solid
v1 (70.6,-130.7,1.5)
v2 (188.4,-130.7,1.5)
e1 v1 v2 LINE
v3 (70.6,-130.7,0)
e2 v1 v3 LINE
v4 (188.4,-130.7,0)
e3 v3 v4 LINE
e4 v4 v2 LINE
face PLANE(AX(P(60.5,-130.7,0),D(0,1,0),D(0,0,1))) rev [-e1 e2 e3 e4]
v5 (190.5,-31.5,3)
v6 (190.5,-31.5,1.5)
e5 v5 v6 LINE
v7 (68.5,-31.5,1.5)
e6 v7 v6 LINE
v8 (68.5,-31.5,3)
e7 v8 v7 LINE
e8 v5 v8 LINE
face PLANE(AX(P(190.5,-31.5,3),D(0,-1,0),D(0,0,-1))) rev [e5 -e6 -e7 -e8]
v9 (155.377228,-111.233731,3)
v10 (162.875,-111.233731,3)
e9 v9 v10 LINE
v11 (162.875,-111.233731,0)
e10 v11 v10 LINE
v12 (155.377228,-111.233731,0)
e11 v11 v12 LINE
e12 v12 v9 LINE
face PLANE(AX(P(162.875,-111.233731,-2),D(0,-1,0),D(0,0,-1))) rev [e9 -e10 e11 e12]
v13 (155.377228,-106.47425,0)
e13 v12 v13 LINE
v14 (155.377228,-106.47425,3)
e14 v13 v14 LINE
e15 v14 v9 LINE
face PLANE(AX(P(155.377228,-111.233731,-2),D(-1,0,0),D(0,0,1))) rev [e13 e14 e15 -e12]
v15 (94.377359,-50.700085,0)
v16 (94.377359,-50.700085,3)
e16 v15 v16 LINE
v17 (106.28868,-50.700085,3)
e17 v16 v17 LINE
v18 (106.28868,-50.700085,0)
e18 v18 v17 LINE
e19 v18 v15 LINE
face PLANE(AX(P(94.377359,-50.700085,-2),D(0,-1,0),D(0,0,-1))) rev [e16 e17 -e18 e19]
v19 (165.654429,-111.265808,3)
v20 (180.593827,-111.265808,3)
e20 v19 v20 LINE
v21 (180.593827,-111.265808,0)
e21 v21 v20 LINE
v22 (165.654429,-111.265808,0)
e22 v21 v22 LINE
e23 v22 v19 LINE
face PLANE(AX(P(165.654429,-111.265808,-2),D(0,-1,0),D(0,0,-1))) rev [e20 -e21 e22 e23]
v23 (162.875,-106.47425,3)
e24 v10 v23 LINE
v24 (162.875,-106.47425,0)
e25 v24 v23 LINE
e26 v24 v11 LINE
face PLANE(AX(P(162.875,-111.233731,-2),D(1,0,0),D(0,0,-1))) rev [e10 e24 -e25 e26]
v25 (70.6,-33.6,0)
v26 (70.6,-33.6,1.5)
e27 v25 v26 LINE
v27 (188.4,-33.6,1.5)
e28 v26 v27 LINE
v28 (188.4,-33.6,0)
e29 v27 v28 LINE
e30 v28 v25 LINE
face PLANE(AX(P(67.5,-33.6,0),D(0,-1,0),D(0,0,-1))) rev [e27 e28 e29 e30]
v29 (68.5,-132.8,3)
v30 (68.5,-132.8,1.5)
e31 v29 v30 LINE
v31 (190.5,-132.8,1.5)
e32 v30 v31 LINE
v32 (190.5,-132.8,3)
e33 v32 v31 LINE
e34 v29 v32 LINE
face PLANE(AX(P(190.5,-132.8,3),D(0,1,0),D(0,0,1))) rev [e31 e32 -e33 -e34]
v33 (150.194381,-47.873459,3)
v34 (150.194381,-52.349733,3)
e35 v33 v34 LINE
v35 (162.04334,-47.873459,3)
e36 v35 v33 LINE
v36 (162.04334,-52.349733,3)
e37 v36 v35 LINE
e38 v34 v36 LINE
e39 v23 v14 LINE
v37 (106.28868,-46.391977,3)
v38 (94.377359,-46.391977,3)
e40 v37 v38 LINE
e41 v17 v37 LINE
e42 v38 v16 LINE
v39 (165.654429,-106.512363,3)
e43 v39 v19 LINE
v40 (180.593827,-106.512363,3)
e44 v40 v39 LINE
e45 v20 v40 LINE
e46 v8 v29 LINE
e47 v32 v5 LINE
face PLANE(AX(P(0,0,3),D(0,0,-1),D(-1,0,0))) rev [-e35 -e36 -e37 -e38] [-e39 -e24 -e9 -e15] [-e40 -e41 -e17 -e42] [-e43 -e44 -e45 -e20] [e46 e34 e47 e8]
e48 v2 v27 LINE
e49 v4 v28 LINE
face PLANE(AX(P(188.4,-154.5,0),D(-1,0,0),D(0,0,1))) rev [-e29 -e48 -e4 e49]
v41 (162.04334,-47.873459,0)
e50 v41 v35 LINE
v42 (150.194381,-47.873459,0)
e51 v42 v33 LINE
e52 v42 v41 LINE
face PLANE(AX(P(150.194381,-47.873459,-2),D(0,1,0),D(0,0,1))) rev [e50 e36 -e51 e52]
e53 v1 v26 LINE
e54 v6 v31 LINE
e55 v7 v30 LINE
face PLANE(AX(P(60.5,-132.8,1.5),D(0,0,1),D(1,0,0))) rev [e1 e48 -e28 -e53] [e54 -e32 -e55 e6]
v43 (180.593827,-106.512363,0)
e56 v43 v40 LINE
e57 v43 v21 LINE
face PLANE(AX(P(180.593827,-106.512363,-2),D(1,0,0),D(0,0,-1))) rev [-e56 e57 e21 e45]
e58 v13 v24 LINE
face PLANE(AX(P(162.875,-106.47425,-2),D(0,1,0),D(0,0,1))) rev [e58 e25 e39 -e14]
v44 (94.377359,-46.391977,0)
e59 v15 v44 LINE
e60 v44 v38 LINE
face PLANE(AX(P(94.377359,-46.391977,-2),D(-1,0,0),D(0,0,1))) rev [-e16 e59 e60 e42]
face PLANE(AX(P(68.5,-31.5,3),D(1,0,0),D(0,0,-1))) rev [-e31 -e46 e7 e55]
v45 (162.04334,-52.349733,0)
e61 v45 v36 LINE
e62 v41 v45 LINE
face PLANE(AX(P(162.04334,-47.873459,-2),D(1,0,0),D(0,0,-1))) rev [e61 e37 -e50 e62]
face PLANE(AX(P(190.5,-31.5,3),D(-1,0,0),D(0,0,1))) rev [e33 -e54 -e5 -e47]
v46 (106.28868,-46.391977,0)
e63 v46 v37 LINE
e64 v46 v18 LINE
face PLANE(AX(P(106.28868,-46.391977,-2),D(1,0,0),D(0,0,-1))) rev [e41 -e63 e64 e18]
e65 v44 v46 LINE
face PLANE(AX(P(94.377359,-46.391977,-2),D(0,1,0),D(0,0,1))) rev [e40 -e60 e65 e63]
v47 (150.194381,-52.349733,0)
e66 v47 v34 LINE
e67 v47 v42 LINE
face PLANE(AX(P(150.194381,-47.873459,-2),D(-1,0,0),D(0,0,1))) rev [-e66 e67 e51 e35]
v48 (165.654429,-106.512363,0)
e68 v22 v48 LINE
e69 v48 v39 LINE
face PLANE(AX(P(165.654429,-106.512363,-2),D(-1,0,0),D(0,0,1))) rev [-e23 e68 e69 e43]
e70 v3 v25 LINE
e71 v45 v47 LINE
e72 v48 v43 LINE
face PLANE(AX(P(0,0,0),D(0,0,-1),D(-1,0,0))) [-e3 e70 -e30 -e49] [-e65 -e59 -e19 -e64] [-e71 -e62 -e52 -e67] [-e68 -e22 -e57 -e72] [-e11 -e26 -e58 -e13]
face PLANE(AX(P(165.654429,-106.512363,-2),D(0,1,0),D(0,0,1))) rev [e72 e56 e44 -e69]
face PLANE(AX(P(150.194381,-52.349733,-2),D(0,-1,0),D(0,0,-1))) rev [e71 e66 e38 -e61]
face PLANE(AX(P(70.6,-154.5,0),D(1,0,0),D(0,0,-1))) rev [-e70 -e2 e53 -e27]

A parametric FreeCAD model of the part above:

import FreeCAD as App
import Part
import Sketcher

V = App.Vector

doc = App.newDocument("Part")
params = doc.addObject("Spreadsheet::Sheet", "Params")
for row, (alias, value) in enumerate([
    ("sketch1_width", "122 mm"),
    ("sketch1_height", "101.3 mm"),
    ("pad1_length", "3 mm"),
    ("sketch2_width", "2.1 mm"),
    ("sketch2_height", "1.5 mm"),
    ("pocket1_length", "130 mm"),
    ("sketch3_width", "2.1 mm"),
    ("sketch3_height", "1.5 mm"),
    ("pocket2_length", "123 mm"),
    ("sketch4_width", "2.1 mm"),
    ("sketch4_height", "1.5 mm"),
    ("pocket3_length", "123 mm"),
    ("sketch5_width", "2.1 mm"),
    ("sketch5_height", "1.5 mm"),
    ("pocket4_length", "123 mm"),
    ("pocket5_length", "5 mm"),
    ("pocket6_length", "5 mm"),
    ("pocket7_length", "5 mm"),
    ("pocket8_length", "5 mm"),
], start=1):
    params.set(f"A{row}", alias)
    params.set(f"B{row}", "=" + value)
    params.setAlias(f"B{row}", alias)

body = doc.addObject("PartDesign::Body", "Body")

# Sketch on XY plane
sketch1 = doc.addObject("Sketcher::SketchObject", "Sketch")
body.addObject(sketch1)
sketch1.AttachmentSupport = (doc.XY_Plane, [""])
sketch1.MapMode = "FlatFace"
sketch1.addGeometry(Part.LineSegment(V(68, -32, 0), V(68, -133, 0)), False)
sketch1.addGeometry(Part.LineSegment(V(68, -133, 0), V(190, -133, 0)), False)
sketch1.addGeometry(Part.LineSegment(V(190, -133, 0), V(190, -32, 0)), False)
sketch1.addGeometry(Part.LineSegment(V(190, -32, 0), V(68, -32, 0)), False)
sketch1.addConstraint(Sketcher.Constraint("Coincident", 0, 2, 1, 1))
sketch1.addConstraint(Sketcher.Constraint("Coincident", 1, 2, 2, 1))
sketch1.addConstraint(Sketcher.Constraint("Coincident", 2, 2, 3, 1))
sketch1.addConstraint(Sketcher.Constraint("Coincident", 3, 2, 0, 1))
sketch1.addConstraint(Sketcher.Constraint("Vertical", 0))
sketch1.addConstraint(Sketcher.Constraint("Horizontal", 1))
sketch1.addConstraint(Sketcher.Constraint("Vertical", 2))
sketch1.addConstraint(Sketcher.Constraint("Horizontal", 3))
sketch1.addConstraint(Sketcher.Constraint("DistanceX", 1, 1, 1, 2, 122.0))
sketch1.addConstraint(Sketcher.Constraint("DistanceY", 0, 2, 0, 1, 101.3))
sketch1.addConstraint(Sketcher.Constraint("DistanceX", -1, 1, 0, 2, 68.5))
sketch1.addConstraint(Sketcher.Constraint("DistanceY", 0, 2, -1, 1, 132.8))
sketch1.setExpression("Constraints[8]", "Params.sketch1_width")
sketch1.setExpression("Constraints[9]", "Params.sketch1_height")
pad1 = doc.addObject("PartDesign::Pad", "Pad")
body.addObject(pad1)
pad1.Profile = sketch1
pad1.setExpression("Length", "Params.pad1_length")

# Sketch on YZ plane
sketch2 = doc.addObject("Sketcher::SketchObject", "Sketch001")
body.addObject(sketch2)
sketch2.AttachmentSupport = (doc.YZ_Plane, [""])
sketch2.MapMode = "FlatFace"
sketch2.AttachmentOffset = App.Placement(V(0, 0, 190.5), App.Rotation())
sketch2.addGeometry(Part.LineSegment(V(-130.7, 1.5, 0), V(-132.8, 1.5, 0)), False)
sketch2.addGeometry(Part.LineSegment(V(-132.8, 1.5, 0), V(-132.8, 0, 0)), False)
sketch2.addGeometry(Part.LineSegment(V(-132.8, 0, 0), V(-130.7, 0, 0)), False)
sketch2.addGeometry(Part.LineSegment(V(-130.7, 0, 0), V(-130.7, 1.5, 0)), False)
sketch2.addConstraint(Sketcher.Constraint("Coincident", 0, 2, 1, 1))
sketch2.addConstraint(Sketcher.Constraint("Coincident", 1, 2, 2, 1))
sketch2.addConstraint(Sketcher.Constraint("Coincident", 2, 2, 3, 1))
sketch2.addConstraint(Sketcher.Constraint("Coincident", 3, 2, 0, 1))
sketch2.addConstraint(Sketcher.Constraint("Horizontal", 0))
sketch2.addConstraint(Sketcher.Constraint("Vertical", 1))
sketch2.addConstraint(Sketcher.Constraint("Horizontal", 2))
sketch2.addConstraint(Sketcher.Constraint("Vertical", 3))
sketch2.addConstraint(Sketcher.Constraint("PointOnObject", 1, 2, -1))
sketch2.addConstraint(Sketcher.Constraint("DistanceX", 0, 2, 0, 1, 2.1))
sketch2.addConstraint(Sketcher.Constraint("DistanceY", 1, 2, 1, 1, 1.5))
sketch2.addConstraint(Sketcher.Constraint("DistanceX", 0, 2, -1, 1, 132.8))
sketch2.setExpression("Constraints[9]", "Params.sketch2_width")
sketch2.setExpression("Constraints[10]", "Params.sketch2_height")
pocket1 = doc.addObject("PartDesign::Pocket", "Pocket")
body.addObject(pocket1)
pocket1.Profile = sketch2
pocket1.setExpression("Length", "Params.pocket1_length")

# Sketch on YZ plane
sketch3 = doc.addObject("Sketcher::SketchObject", "Sketch002")
body.addObject(sketch3)
sketch3.AttachmentSupport = (doc.YZ_Plane, [""])
sketch3.MapMode = "FlatFace"
sketch3.AttachmentOffset = App.Placement(V(0, 0, 190.5), App.Rotation())
sketch3.addGeometry(Part.LineSegment(V(-31.5, 1.5, 0), V(-33.6, 1.5, 0)), False)
sketch3.addGeometry(Part.LineSegment(V(-33.6, 1.5, 0), V(-33.6, 0, 0)), False)
sketch3.addGeometry(Part.LineSegment(V(-33.6, 0, 0), V(-31.5, 0, 0)), False)
sketch3.addGeometry(Part.LineSegment(V(-31.5, 0, 0), V(-31.5, 1.5, 0)), False)
sketch3.addConstraint(Sketcher.Constraint("Coincident", 0, 2, 1, 1))
sketch3.addConstraint(Sketcher.Constraint("Coincident", 1, 2, 2, 1))
sketch3.addConstraint(Sketcher.Constraint("Coincident", 2, 2, 3, 1))
sketch3.addConstraint(Sketcher.Constraint("Coincident", 3, 2, 0, 1))
sketch3.addConstraint(Sketcher.Constraint("Horizontal", 0))
sketch3.addConstraint(Sketcher.Constraint("Vertical", 1))
sketch3.addConstraint(Sketcher.Constraint("Horizontal", 2))
sketch3.addConstraint(Sketcher.Constraint("Vertical", 3))
sketch3.addConstraint(Sketcher.Constraint("PointOnObject", 1, 2, -1))
sketch3.addConstraint(Sketcher.Constraint("DistanceX", 0, 2, 0, 1, 2.1))
sketch3.addConstraint(Sketcher.Constraint("DistanceY", 1, 2, 1, 1, 1.5))
sketch3.addConstraint(Sketcher.Constraint("DistanceX", 0, 2, -1, 1, 33.6))
sketch3.setExpression("Constraints[9]", "Params.sketch3_width")
sketch3.setExpression("Constraints[10]", "Params.sketch3_height")
pocket2 = doc.addObject("PartDesign::Pocket", "Pocket001")
body.addObject(pocket2)
pocket2.Profile = sketch3
pocket2.setExpression("Length", "Params.pocket2_length")

# Sketch on XZ plane
sketch4 = doc.addObject("Sketcher::SketchObject", "Sketch003")
body.addObject(sketch4)
sketch4.AttachmentSupport = (doc.XZ_Plane, [""])
sketch4.MapMode = "FlatFace"
sketch4.AttachmentOffset = App.Placement(V(0, 0, 31.5), App.Rotation())
sketch4.addGeometry(Part.LineSegment(V(68.5, 0, 0), V(68.5, 1.5, 0)), False)
sketch4.addGeometry(Part.LineSegment(V(68.5, 1.5, 0), V(70.6, 1.5, 0)), False)
sketch4.addGeometry(Part.LineSegment(V(70.6, 1.5, 0), V(70.6, 0, 0)), False)
sketch4.addGeometry(Part.LineSegment(V(70.6, 0, 0), V(68.5, 0, 0)), False)
sketch4.addConstraint(Sketcher.Constraint("Coincident", 0, 2, 1, 1))
sketch4.addConstraint(Sketcher.Constraint("Coincident", 1, 2, 2, 1))
sketch4.addConstraint(Sketcher.Constraint("Coincident", 2, 2, 3, 1))
sketch4.addConstraint(Sketcher.Constraint("Coincident", 3, 2, 0, 1))
sketch4.addConstraint(Sketcher.Constraint("Vertical", 0))
sketch4.addConstraint(Sketcher.Constraint("Horizontal", 1))
sketch4.addConstraint(Sketcher.Constraint("Vertical", 2))
sketch4.addConstraint(Sketcher.Constraint("Horizontal", 3))
sketch4.addConstraint(Sketcher.Constraint("PointOnObject", 2, 2, -1))
sketch4.addConstraint(Sketcher.Constraint("DistanceX", 1, 1, 1, 2, 2.1))
sketch4.addConstraint(Sketcher.Constraint("DistanceY", 0, 1, 0, 2, 1.5))
sketch4.addConstraint(Sketcher.Constraint("DistanceX", -1, 1, 0, 2, 68.5))
sketch4.setExpression("Constraints[9]", "Params.sketch4_width")
sketch4.setExpression("Constraints[10]", "Params.sketch4_height")
pocket3 = doc.addObject("PartDesign::Pocket", "Pocket002")
body.addObject(pocket3)
pocket3.Profile = sketch4
pocket3.setExpression("Length", "Params.pocket3_length")
pocket3.Reversed = True

# Sketch on XZ plane
sketch5 = doc.addObject("Sketcher::SketchObject", "Sketch004")
body.addObject(sketch5)
sketch5.AttachmentSupport = (doc.XZ_Plane, [""])
sketch5.MapMode = "FlatFace"
sketch5.AttachmentOffset = App.Placement(V(0, 0, 31.5), App.Rotation())
sketch5.addGeometry(Part.LineSegment(V(188.4, 0, 0), V(188.4, 1.5, 0)), False)
sketch5.addGeometry(Part.LineSegment(V(188.4, 1.5, 0), V(190.5, 1.5, 0)), False)
sketch5.addGeometry(Part.LineSegment(V(190.5, 1.5, 0), V(190.5, 0, 0)), False)
sketch5.addGeometry(Part.LineSegment(V(190.5, 0, 0), V(188.4, 0, 0)), False)
sketch5.addConstraint(Sketcher.Constraint("Coincident", 0, 2, 1, 1))
sketch5.addConstraint(Sketcher.Constraint("Coincident", 1, 2, 2, 1))
sketch5.addConstraint(Sketcher.Constraint("Coincident", 2, 2, 3, 1))
sketch5.addConstraint(Sketcher.Constraint("Coincident", 3, 2, 0, 1))
sketch5.addConstraint(Sketcher.Constraint("Vertical", 0))
sketch5.addConstraint(Sketcher.Constraint("Horizontal", 1))
sketch5.addConstraint(Sketcher.Constraint("Vertical", 2))
sketch5.addConstraint(Sketcher.Constraint("Horizontal", 3))
sketch5.addConstraint(Sketcher.Constraint("PointOnObject", 2, 2, -1))
sketch5.addConstraint(Sketcher.Constraint("DistanceX", 1, 1, 1, 2, 2.1))
sketch5.addConstraint(Sketcher.Constraint("DistanceY", 0, 1, 0, 2, 1.5))
sketch5.addConstraint(Sketcher.Constraint("DistanceX", -1, 1, 0, 2, 188.4))
sketch5.setExpression("Constraints[9]", "Params.sketch5_width")
sketch5.setExpression("Constraints[10]", "Params.sketch5_height")
pocket4 = doc.addObject("PartDesign::Pocket", "Pocket003")
body.addObject(pocket4)
pocket4.Profile = sketch5
pocket4.setExpression("Length", "Params.pocket4_length")
pocket4.Reversed = True

# Sketch on XY plane
sketch6 = doc.addObject("Sketcher::SketchObject", "Sketch005")
body.addObject(sketch6)
sketch6.AttachmentSupport = (doc.XY_Plane, [""])
sketch6.MapMode = "FlatFace"
sketch6.AttachmentOffset = App.Placement(V(0, 0, 3), App.Rotation())
sketch6.addGeometry(Part.LineSegment(V(155.4, -106.5, 0), V(155.4, -111.2, 0)), False)
sketch6.addGeometry(Part.LineSegment(V(155.4, -111.2, 0), V(162.9, -111.2, 0)), False)
sketch6.addGeometry(Part.LineSegment(V(162.9, -111.2, 0), V(162.9, -106.5, 0)), False)
sketch6.addGeometry(Part.LineSegment(V(162.9, -106.5, 0), V(155.4, -106.5, 0)), False)
sketch6.addConstraint(Sketcher.Constraint("Coincident", 0, 2, 1, 1))
sketch6.addConstraint(Sketcher.Constraint("Coincident", 1, 2, 2, 1))
sketch6.addConstraint(Sketcher.Constraint("Coincident", 2, 2, 3, 1))
sketch6.addConstraint(Sketcher.Constraint("Coincident", 3, 2, 0, 1))
sketch6.addConstraint(Sketcher.Constraint("Vertical", 0))
sketch6.addConstraint(Sketcher.Constraint("Horizontal", 1))
sketch6.addConstraint(Sketcher.Constraint("Vertical", 2))
sketch6.addConstraint(Sketcher.Constraint("Horizontal", 3))
sketch6.addConstraint(Sketcher.Constraint("DistanceX", -1, 1, 1, 2, 162.875))
sketch6.addConstraint(Sketcher.Constraint("DistanceY", 0, 2, 0, 1, 4.759481))
sketch6.addConstraint(Sketcher.Constraint("DistanceX", 1, 1, 1, 2, 7.497772))
sketch6.addConstraint(Sketcher.Constraint("DistanceY", 0, 2, -1, 1, 111.233731))
pocket5 = doc.addObject("PartDesign::Pocket", "Pocket004")
body.addObject(pocket5)
pocket5.Profile = sketch6
pocket5.setExpression("Length", "Params.pocket5_length")

# Sketch on XY plane
sketch7 = doc.addObject("Sketcher::SketchObject", "Sketch006")
body.addObject(sketch7)
sketch7.AttachmentSupport = (doc.XY_Plane, [""])
sketch7.MapMode = "FlatFace"
sketch7.AttachmentOffset = App.Placement(V(0, 0, 3), App.Rotation())
sketch7.addGeometry(Part.LineSegment(V(150.2, -47.9, 0), V(150.2, -52.3, 0)), False)
sketch7.addGeometry(Part.LineSegment(V(150.2, -52.3, 0), V(162, -52.3, 0)), False)
sketch7.addGeometry(Part.LineSegment(V(162, -52.3, 0), V(162, -47.9, 0)), False)
sketch7.addGeometry(Part.LineSegment(V(162, -47.9, 0), V(150.2, -47.9, 0)), False)
sketch7.addConstraint(Sketcher.Constraint("Coincident", 0, 2, 1, 1))
sketch7.addConstraint(Sketcher.Constraint("Coincident", 1, 2, 2, 1))
sketch7.addConstraint(Sketcher.Constraint("Coincident", 2, 2, 3, 1))
sketch7.addConstraint(Sketcher.Constraint("Coincident", 3, 2, 0, 1))
sketch7.addConstraint(Sketcher.Constraint("Vertical", 0))
sketch7.addConstraint(Sketcher.Constraint("Horizontal", 1))
sketch7.addConstraint(Sketcher.Constraint("Vertical", 2))
sketch7.addConstraint(Sketcher.Constraint("Horizontal", 3))
sketch7.addConstraint(Sketcher.Constraint("DistanceX", 1, 1, 1, 2, 11.848959))
sketch7.addConstraint(Sketcher.Constraint("DistanceY", 0, 2, 0, 1, 4.476274))
sketch7.addConstraint(Sketcher.Constraint("DistanceX", -1, 1, 0, 2, 150.194381))
sketch7.addConstraint(Sketcher.Constraint("DistanceY", 2, 2, -1, 1, 47.873459))
pocket6 = doc.addObject("PartDesign::Pocket", "Pocket005")
body.addObject(pocket6)
pocket6.Profile = sketch7
pocket6.setExpression("Length", "Params.pocket6_length")

# Sketch on XY plane
sketch8 = doc.addObject("Sketcher::SketchObject", "Sketch007")
body.addObject(sketch8)
sketch8.AttachmentSupport = (doc.XY_Plane, [""])
sketch8.MapMode = "FlatFace"
sketch8.AttachmentOffset = App.Placement(V(0, 0, 3), App.Rotation())
sketch8.addGeometry(Part.LineSegment(V(94.4, -46.4, 0), V(94.4, -50.7, 0)), False)
sketch8.addGeometry(Part.LineSegment(V(94.4, -50.7, 0), V(106.3, -50.7, 0)), False)
sketch8.addGeometry(Part.LineSegment(V(106.3, -50.7, 0), V(106.3, -46.4, 0)), False)
sketch8.addGeometry(Part.LineSegment(V(106.3, -46.4, 0), V(94.4, -46.4, 0)), False)
sketch8.addConstraint(Sketcher.Constraint("Coincident", 0, 2, 1, 1))
sketch8.addConstraint(Sketcher.Constraint("Coincident", 1, 2, 2, 1))
sketch8.addConstraint(Sketcher.Constraint("Coincident", 2, 2, 3, 1))
sketch8.addConstraint(Sketcher.Constraint("Coincident", 3, 2, 0, 1))
sketch8.addConstraint(Sketcher.Constraint("Vertical", 0))
sketch8.addConstraint(Sketcher.Constraint("Horizontal", 1))
sketch8.addConstraint(Sketcher.Constraint("Vertical", 2))
sketch8.addConstraint(Sketcher.Constraint("Horizontal", 3))
sketch8.addConstraint(Sketcher.Constraint("DistanceX", 1, 1, 1, 2, 11.911322))
sketch8.addConstraint(Sketcher.Constraint("DistanceY", 0, 2, 0, 1, 4.308108))
sketch8.addConstraint(Sketcher.Constraint("DistanceX", -1, 1, 0, 2, 94.377359))
sketch8.addConstraint(Sketcher.Constraint("DistanceY", 0, 2, -1, 1, 50.700085))
pocket7 = doc.addObject("PartDesign::Pocket", "Pocket006")
body.addObject(pocket7)
pocket7.Profile = sketch8
pocket7.setExpression("Length", "Params.pocket7_length")

# Sketch on XY plane
sketch9 = doc.addObject("Sketcher::SketchObject", "Sketch008")
body.addObject(sketch9)
sketch9.AttachmentSupport = (doc.XY_Plane, [""])
sketch9.MapMode = "FlatFace"
sketch9.AttachmentOffset = App.Placement(V(0, 0, 3), App.Rotation())
sketch9.addGeometry(Part.LineSegment(V(165.7, -106.5, 0), V(165.7, -111.3, 0)), False)
sketch9.addGeometry(Part.LineSegment(V(165.7, -111.3, 0), V(180.6, -111.3, 0)), False)
sketch9.addGeometry(Part.LineSegment(V(180.6, -111.3, 0), V(180.6, -106.5, 0)), False)
sketch9.addGeometry(Part.LineSegment(V(180.6, -106.5, 0), V(165.7, -106.5, 0)), False)
sketch9.addConstraint(Sketcher.Constraint("Coincident", 0, 2, 1, 1))
sketch9.addConstraint(Sketcher.Constraint("Coincident", 1, 2, 2, 1))
sketch9.addConstraint(Sketcher.Constraint("Coincident", 2, 2, 3, 1))
sketch9.addConstraint(Sketcher.Constraint("Coincident", 3, 2, 0, 1))
sketch9.addConstraint(Sketcher.Constraint("Vertical", 0))
sketch9.addConstraint(Sketcher.Constraint("Horizontal", 1))
sketch9.addConstraint(Sketcher.Constraint("Vertical", 2))
sketch9.addConstraint(Sketcher.Constraint("Horizontal", 3))
sketch9.addConstraint(Sketcher.Constraint("DistanceX", 1, 1, 1, 2, 14.939398))
sketch9.addConstraint(Sketcher.Constraint("DistanceY", 0, 2, 0, 1, 4.753445))
sketch9.addConstraint(Sketcher.Constraint("DistanceX", -1, 1, 0, 2, 165.654429))
sketch9.addConstraint(Sketcher.Constraint("DistanceY", 0, 2, -1, 1, 111.265808))
pocket8 = doc.addObject("PartDesign::Pocket", "Pocket007")
body.addObject(pocket8)
pocket8.Profile = sketch9
pocket8.setExpression("Length", "Params.pocket8_length")

doc.recompute()
